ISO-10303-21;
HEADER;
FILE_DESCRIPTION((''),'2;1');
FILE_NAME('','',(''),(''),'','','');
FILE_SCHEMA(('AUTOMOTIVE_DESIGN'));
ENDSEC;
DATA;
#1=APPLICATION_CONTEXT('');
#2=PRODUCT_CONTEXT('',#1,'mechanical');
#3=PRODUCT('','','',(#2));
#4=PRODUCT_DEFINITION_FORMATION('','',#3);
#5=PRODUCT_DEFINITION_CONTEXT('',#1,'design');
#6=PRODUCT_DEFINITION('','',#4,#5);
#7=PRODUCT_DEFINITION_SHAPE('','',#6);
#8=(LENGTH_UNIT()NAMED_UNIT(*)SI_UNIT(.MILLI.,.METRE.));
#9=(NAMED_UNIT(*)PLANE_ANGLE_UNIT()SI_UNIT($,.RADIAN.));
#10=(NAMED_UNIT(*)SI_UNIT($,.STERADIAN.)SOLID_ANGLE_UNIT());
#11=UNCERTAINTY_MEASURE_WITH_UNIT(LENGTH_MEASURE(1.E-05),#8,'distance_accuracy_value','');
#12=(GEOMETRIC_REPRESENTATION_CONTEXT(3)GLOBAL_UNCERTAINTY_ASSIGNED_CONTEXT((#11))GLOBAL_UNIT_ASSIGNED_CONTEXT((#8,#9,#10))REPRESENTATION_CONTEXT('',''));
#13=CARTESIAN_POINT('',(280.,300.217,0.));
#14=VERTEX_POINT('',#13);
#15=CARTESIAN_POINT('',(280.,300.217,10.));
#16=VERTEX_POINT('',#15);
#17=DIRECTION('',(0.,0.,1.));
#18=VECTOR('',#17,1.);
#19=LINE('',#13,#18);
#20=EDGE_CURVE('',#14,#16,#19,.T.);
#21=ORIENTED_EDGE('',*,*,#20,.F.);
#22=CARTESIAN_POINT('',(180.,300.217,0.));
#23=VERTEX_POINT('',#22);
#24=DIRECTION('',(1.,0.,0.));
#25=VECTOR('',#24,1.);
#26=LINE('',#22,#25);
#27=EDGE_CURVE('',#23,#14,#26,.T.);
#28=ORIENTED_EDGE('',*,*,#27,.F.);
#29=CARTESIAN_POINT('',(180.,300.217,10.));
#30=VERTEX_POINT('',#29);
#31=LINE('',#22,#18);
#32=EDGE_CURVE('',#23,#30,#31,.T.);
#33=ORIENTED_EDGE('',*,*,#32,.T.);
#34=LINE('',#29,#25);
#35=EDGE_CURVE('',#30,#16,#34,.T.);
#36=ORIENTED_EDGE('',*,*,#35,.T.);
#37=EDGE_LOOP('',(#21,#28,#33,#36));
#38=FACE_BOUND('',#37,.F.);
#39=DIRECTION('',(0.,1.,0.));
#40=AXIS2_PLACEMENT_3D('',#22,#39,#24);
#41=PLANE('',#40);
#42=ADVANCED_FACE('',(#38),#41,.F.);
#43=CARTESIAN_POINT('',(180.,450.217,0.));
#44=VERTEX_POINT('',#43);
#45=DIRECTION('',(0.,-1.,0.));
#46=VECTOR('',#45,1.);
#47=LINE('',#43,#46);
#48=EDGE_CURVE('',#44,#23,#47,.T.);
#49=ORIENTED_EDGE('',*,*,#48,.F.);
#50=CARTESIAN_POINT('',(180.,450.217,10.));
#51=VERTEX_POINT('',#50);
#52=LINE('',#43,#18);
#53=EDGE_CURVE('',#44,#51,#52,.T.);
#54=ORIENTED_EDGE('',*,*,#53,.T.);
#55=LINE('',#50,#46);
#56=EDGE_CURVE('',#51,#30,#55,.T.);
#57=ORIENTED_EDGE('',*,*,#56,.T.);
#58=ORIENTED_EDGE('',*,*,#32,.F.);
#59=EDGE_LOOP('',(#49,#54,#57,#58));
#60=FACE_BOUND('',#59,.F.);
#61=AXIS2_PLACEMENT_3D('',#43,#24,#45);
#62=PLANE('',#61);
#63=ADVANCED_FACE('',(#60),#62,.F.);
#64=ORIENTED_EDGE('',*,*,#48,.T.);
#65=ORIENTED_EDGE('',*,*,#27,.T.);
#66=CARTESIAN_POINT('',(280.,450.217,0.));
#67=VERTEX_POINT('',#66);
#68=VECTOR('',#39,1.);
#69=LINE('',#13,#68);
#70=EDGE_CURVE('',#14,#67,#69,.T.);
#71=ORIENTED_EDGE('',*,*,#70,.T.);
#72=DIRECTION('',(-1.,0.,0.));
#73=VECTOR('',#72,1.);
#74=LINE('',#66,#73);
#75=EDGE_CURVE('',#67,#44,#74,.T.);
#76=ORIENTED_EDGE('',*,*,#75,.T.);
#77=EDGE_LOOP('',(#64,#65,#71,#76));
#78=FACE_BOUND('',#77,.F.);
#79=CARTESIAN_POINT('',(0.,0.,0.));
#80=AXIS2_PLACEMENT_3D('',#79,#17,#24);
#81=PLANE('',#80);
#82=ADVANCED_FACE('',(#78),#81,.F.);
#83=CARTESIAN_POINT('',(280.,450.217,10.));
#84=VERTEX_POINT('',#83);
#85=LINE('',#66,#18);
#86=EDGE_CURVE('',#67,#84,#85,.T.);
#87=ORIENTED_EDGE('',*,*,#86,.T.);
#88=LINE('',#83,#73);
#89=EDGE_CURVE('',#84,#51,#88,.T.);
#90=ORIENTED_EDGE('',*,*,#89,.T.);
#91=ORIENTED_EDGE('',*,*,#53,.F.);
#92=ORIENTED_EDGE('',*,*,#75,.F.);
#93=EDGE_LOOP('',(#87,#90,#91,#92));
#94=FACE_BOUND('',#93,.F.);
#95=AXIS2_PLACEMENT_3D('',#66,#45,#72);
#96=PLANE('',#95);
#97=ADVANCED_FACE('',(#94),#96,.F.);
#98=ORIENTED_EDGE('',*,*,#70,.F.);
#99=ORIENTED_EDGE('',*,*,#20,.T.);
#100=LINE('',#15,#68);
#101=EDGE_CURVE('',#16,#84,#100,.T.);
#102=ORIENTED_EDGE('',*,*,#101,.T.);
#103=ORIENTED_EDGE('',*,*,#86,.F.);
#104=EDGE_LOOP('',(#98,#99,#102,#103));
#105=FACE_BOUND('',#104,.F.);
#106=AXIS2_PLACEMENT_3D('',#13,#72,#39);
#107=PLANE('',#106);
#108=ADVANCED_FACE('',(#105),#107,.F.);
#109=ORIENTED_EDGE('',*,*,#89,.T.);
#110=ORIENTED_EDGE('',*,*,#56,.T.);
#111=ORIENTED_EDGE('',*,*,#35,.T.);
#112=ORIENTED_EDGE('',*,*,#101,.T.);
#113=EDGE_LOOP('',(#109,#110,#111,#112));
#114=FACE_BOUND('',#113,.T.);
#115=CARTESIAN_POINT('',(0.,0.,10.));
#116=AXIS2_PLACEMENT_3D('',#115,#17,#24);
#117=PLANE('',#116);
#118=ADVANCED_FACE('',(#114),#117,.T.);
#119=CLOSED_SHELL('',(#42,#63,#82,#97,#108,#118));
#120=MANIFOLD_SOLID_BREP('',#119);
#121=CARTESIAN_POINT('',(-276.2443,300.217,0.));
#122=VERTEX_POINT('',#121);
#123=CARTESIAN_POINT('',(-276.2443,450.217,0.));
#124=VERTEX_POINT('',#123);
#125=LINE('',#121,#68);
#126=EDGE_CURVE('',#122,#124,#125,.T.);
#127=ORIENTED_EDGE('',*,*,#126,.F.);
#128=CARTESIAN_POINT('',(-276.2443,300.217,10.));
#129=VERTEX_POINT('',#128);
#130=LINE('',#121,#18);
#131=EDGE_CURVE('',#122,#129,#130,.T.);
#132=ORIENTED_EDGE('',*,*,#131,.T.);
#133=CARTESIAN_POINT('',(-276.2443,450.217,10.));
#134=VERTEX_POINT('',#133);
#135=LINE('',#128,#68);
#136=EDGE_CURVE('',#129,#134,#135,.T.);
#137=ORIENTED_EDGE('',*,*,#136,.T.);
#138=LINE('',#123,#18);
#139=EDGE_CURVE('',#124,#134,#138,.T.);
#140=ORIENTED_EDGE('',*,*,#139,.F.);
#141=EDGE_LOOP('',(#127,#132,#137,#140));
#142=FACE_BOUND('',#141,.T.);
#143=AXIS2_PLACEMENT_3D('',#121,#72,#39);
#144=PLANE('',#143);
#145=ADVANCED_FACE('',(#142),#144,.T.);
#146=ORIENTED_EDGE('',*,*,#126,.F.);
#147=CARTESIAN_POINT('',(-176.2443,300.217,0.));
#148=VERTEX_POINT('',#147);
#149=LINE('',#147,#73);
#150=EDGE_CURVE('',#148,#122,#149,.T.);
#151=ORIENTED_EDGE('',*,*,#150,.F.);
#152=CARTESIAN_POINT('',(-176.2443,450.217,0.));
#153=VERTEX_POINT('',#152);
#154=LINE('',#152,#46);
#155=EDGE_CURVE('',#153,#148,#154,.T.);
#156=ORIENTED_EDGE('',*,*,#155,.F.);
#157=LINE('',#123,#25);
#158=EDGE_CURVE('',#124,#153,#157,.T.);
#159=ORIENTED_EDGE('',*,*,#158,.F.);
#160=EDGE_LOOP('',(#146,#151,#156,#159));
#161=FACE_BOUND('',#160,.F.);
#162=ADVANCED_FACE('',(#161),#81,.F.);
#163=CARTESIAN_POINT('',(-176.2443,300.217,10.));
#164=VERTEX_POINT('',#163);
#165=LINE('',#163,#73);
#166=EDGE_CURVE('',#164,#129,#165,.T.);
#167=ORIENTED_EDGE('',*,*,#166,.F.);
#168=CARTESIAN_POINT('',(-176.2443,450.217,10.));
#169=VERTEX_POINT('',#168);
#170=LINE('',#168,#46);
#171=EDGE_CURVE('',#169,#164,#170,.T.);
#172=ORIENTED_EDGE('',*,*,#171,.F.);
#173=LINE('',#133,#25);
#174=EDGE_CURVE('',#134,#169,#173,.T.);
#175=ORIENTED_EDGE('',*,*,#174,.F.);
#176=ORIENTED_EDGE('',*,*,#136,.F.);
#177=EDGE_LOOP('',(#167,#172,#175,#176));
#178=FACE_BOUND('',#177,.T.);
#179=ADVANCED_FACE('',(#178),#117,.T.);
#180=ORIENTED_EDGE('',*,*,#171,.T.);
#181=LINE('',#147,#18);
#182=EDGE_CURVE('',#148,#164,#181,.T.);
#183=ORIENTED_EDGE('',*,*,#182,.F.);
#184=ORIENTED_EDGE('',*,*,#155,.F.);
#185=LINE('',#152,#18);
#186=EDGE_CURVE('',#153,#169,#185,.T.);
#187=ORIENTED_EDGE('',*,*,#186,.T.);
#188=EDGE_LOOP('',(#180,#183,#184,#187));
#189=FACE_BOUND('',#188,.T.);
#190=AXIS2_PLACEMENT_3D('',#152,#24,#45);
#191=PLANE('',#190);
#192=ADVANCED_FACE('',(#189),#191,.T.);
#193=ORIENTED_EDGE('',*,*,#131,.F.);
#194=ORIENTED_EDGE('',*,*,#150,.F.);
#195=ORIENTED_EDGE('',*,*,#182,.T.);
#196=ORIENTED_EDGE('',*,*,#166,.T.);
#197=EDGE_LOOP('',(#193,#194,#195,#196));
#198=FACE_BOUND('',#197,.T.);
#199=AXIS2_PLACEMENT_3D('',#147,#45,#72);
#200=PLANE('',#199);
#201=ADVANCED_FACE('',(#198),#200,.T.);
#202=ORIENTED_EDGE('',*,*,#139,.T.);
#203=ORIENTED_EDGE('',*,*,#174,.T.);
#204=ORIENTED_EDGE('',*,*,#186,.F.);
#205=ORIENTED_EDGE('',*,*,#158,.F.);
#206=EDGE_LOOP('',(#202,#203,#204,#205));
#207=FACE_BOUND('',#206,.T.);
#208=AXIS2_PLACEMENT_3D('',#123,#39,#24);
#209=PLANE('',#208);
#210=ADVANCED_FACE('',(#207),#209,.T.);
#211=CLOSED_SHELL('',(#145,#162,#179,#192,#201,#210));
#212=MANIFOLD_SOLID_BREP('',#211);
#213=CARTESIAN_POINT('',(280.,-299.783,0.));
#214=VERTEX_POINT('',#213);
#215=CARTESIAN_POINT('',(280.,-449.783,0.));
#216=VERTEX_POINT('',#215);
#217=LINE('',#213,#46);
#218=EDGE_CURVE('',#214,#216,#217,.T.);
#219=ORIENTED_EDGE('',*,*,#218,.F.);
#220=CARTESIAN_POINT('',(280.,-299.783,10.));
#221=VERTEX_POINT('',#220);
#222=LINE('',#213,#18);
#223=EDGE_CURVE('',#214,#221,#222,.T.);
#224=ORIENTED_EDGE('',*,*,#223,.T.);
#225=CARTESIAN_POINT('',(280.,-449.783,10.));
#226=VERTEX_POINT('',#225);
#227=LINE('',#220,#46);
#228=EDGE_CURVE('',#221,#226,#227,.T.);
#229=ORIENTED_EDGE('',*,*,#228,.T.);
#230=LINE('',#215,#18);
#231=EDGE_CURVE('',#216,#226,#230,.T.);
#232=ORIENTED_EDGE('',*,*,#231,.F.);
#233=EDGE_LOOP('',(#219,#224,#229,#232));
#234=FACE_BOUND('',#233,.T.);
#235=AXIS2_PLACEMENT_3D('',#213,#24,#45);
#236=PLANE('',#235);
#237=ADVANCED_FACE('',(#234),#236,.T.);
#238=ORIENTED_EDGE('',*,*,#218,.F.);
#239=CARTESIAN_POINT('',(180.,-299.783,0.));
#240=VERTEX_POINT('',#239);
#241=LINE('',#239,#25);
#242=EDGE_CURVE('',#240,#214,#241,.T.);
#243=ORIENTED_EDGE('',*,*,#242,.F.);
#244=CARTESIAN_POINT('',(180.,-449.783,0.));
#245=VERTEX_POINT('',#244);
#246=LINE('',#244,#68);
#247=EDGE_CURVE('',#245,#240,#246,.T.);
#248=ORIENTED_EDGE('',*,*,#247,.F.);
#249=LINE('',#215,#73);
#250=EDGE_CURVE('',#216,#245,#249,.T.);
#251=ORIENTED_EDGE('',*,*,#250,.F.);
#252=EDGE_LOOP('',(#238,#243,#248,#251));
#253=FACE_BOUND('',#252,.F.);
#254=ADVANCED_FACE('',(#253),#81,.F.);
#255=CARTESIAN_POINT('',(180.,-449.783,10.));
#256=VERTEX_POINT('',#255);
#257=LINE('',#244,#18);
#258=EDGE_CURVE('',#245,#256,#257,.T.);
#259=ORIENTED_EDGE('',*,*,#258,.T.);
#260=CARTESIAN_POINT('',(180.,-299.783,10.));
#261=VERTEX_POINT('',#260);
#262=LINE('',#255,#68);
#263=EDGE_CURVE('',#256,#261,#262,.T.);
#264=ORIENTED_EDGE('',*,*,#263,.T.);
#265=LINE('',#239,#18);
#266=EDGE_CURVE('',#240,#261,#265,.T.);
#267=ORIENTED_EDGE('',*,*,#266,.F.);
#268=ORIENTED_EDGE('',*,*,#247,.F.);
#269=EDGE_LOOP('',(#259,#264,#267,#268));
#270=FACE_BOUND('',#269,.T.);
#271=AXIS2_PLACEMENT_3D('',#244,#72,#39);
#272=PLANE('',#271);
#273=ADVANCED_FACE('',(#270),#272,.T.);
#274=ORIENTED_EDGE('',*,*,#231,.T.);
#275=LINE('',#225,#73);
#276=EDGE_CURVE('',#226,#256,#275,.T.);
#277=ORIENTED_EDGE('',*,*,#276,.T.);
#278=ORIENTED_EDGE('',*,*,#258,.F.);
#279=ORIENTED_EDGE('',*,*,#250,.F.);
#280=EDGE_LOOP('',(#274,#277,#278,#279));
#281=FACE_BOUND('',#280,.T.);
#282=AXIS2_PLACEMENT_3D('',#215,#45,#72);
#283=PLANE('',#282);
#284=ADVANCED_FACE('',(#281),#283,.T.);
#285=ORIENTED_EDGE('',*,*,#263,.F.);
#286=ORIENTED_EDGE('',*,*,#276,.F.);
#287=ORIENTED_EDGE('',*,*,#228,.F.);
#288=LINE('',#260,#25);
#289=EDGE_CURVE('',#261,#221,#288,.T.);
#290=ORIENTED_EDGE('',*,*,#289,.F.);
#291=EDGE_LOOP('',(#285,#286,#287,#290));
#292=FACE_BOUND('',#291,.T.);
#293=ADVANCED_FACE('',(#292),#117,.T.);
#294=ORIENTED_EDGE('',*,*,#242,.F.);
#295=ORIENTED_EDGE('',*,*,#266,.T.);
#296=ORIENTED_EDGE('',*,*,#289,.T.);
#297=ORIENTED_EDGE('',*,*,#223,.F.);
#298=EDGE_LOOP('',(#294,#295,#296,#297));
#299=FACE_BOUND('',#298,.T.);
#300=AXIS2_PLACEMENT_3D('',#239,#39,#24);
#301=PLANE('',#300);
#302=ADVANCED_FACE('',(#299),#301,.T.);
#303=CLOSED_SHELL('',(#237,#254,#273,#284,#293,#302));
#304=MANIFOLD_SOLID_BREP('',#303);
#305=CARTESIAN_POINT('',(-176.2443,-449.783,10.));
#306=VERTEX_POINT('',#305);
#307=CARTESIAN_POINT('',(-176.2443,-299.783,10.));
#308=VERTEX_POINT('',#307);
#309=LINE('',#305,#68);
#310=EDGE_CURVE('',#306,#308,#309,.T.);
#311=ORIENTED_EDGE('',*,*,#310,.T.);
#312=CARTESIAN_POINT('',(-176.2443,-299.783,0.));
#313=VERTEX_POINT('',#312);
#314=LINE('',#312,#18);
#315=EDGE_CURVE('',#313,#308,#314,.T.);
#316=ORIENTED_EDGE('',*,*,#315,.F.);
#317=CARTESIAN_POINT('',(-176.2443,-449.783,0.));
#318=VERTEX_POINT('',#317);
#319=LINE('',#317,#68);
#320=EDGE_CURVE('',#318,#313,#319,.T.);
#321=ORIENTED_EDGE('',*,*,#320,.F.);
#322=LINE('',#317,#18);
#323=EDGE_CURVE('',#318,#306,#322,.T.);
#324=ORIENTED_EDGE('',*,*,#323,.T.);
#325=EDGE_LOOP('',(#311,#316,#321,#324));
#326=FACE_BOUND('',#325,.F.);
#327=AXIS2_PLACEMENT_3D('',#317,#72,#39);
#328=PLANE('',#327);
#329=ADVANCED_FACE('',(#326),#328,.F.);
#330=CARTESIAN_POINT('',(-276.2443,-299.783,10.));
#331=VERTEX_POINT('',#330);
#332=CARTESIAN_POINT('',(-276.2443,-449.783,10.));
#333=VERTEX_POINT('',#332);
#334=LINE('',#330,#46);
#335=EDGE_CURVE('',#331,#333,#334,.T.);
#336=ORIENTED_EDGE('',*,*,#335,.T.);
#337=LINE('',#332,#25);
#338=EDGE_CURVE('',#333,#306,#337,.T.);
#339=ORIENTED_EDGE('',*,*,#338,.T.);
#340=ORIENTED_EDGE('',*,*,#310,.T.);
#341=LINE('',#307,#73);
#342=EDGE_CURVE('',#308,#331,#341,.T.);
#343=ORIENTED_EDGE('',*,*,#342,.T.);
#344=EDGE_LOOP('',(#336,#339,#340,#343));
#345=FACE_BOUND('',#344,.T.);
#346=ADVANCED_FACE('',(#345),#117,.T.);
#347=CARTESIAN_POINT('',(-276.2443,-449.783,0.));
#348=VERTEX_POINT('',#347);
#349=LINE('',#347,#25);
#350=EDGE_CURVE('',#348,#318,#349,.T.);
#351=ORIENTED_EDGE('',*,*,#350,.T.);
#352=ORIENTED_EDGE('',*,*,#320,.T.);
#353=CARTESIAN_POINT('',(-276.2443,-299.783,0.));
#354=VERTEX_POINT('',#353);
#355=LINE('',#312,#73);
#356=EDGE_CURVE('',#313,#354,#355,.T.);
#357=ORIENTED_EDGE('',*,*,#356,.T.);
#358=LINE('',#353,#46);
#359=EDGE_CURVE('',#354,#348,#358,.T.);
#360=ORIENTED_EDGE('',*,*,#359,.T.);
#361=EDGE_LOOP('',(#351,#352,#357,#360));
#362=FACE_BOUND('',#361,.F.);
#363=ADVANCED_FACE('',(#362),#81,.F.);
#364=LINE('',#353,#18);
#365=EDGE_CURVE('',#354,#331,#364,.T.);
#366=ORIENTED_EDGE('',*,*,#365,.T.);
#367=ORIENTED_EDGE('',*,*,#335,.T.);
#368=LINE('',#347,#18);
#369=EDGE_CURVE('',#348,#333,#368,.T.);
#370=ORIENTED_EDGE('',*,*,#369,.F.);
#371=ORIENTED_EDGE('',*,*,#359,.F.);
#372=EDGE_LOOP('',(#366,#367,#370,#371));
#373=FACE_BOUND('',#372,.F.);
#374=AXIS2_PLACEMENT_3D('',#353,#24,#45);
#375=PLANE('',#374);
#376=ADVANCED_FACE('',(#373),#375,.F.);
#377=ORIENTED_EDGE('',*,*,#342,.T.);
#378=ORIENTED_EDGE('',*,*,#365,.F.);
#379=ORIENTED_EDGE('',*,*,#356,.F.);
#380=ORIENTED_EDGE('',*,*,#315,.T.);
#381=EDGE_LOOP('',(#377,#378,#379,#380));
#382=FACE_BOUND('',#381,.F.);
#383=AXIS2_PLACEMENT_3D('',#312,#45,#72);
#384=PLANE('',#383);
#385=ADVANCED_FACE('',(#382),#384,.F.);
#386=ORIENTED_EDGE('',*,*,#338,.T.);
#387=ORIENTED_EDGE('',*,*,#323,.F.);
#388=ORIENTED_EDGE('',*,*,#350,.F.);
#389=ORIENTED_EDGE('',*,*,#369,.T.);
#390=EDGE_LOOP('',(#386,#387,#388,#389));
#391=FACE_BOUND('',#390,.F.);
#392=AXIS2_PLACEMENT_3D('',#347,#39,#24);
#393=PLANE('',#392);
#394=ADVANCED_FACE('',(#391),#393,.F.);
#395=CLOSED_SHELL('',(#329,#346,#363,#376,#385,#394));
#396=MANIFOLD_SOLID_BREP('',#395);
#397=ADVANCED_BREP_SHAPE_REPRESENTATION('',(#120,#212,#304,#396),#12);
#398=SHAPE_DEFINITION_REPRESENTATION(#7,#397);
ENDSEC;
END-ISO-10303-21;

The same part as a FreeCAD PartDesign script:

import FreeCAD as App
import Part
import Sketcher
Q = App.Units.Quantity


def add_polygon(sketch, points):
    """Adds a closed chain of lines whose ends are joined by coincident constraints."""
    first, n = sketch.GeometryCount, len(points)
    for a, b in zip(points, points[1:] + points[:1]):
        sketch.addGeometry(Part.LineSegment(App.Vector(*a, 0), App.Vector(*b, 0)), False)
    for i in range(n):
        sketch.addConstraint(Sketcher.Constraint("Coincident", first + i, 2, first + (i + 1) % n, 1))

doc = App.newDocument("Part")
body = doc.addObject("PartDesign::Body", "Body")
body.AllowCompound = True

sketch1 = body.newObject("Sketcher::SketchObject", "Sketch")
sketch1.AttachmentSupport = (doc.getObject("XY_Plane"), [""])
sketch1.MapMode = "FlatFace"
add_polygon(sketch1, [(-276, -300), (-276, -450), (-176, -450), (-176, -300)])
add_polygon(sketch1, [(180, -450), (280, -450), (280, -300), (180, -300)])
add_polygon(sketch1, [(-176, 450), (-276, 450), (-276, 300), (-176, 300)])
add_polygon(sketch1, [(280, 300), (280, 450), (180, 450), (180, 300)])
sketch1.addConstraint([
    Sketcher.Constraint("Vertical", 0),
    Sketcher.Constraint("Horizontal", 1),
    Sketcher.Constraint("Vertical", 2),
    Sketcher.Constraint("Horizontal", 3),
    Sketcher.Constraint("Horizontal", 4),
    Sketcher.Constraint("Vertical", 5),
    Sketcher.Constraint("Horizontal", 6),
    Sketcher.Constraint("Vertical", 7),
    Sketcher.Constraint("Horizontal", 8),
    Sketcher.Constraint("Vertical", 9),
    Sketcher.Constraint("Horizontal", 10),
    Sketcher.Constraint("Vertical", 11),
    Sketcher.Constraint("Vertical", 12),
    Sketcher.Constraint("Horizontal", 13),
    Sketcher.Constraint("Vertical", 14),
    Sketcher.Constraint("Horizontal", 15),
    Sketcher.Constraint("Horizontal", 1, 2, 4, 2),
    Sketcher.Constraint("Horizontal", 3, 2, 5, 2),
    Sketcher.Constraint("Horizontal", 11, 2, 12, 2),
    Sketcher.Constraint("Horizontal", 10, 2, 14, 2),
    Sketcher.Constraint("Vertical", 3, 2, 8, 2),
    Sketcher.Constraint("Vertical", 2, 2, 10, 2),
    Sketcher.Constraint("Vertical", 5, 2, 12, 2),
    Sketcher.Constraint("Vertical", 7, 2, 13, 2),
    Sketcher.Constraint("Equal", 3, 4),
    Sketcher.Constraint("Equal", 7, 9),
    Sketcher.Constraint("DistanceX", 1, 1, 1, 2, Q("3.937 in")),
    Sketcher.Constraint("DistanceY", 0, 2, 0, 1, Q("5.9055 in")),
    Sketcher.Constraint("DistanceY", 0, 2, -1, 1, Q("17.708 in")),
    Sketcher.Constraint("DistanceX", 0, 2, -1, 1, Q("276.2443 mm")),
    Sketcher.Constraint("DistanceX", -1, 1, 4, 2, Q("280 mm")),
    Sketcher.Constraint("DistanceY", -1, 1, 8, 2, Q("450.217 mm")),
])
pad1 = body.newObject("PartDesign::Pad", "Pad")
pad1.Profile = sketch1
pad1.Length = Q("0.3937008 in")

doc.recompute()
